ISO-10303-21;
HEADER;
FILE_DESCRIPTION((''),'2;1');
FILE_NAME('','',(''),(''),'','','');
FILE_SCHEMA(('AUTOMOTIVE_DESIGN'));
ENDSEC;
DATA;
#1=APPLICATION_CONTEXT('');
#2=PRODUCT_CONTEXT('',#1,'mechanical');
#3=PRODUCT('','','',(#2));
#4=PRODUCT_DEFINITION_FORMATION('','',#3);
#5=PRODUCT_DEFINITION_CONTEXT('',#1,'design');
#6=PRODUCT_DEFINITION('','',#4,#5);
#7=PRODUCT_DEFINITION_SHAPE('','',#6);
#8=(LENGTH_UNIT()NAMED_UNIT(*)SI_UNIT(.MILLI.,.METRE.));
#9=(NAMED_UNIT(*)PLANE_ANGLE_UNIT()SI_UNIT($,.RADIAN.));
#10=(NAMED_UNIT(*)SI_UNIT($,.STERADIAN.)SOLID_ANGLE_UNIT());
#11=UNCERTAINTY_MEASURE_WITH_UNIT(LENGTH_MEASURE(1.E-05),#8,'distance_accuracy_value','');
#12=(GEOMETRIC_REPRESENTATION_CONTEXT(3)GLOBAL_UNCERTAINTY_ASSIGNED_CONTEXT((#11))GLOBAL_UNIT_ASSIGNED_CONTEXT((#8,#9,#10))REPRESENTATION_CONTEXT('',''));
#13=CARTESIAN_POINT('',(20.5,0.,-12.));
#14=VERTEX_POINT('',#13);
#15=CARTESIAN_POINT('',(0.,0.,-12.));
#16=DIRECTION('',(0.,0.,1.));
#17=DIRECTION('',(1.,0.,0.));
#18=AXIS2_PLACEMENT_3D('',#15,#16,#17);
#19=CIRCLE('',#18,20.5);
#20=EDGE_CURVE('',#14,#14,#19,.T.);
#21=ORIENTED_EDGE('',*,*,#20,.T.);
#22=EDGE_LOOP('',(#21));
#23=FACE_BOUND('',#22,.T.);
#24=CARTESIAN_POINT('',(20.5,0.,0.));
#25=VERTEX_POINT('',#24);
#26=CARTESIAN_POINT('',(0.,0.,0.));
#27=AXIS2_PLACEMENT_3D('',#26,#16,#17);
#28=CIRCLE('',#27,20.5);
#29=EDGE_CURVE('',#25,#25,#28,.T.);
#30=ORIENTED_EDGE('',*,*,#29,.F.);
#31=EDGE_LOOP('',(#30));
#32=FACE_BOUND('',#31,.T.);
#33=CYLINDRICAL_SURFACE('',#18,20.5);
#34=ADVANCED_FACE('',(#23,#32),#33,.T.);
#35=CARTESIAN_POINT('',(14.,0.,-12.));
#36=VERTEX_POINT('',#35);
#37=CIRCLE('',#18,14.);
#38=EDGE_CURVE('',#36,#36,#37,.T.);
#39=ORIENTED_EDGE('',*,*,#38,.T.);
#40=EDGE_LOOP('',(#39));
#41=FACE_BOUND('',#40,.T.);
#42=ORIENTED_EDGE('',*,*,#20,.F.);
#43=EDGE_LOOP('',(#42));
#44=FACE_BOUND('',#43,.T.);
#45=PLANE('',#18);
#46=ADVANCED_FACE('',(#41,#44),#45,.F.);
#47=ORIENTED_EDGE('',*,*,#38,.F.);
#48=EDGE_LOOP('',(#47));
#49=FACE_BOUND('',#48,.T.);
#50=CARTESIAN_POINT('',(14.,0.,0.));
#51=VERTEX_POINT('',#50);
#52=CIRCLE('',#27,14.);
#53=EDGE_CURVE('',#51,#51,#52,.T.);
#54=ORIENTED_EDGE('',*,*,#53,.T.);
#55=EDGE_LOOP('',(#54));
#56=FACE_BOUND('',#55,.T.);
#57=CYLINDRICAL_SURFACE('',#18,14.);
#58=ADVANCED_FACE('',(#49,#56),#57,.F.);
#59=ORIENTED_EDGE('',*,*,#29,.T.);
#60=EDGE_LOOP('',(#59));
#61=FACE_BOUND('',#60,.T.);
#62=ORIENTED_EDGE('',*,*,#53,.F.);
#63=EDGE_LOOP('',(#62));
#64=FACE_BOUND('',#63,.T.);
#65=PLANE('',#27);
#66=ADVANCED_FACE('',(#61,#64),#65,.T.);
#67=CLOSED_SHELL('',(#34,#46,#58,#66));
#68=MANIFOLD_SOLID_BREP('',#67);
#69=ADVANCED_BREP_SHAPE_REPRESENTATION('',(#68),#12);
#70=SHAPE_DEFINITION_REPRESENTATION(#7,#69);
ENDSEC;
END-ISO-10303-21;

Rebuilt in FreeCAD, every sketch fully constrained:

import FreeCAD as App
import Part
import Sketcher
Q = App.Units.Quantity

doc = App.newDocument("Part")
body = doc.addObject("PartDesign::Body", "Body")

sketch1 = body.newObject("Sketcher::SketchObject", "Sketch")
sketch1.AttachmentSupport = (doc.getObject("XY_Plane"), [""])
sketch1.MapMode = "FlatFace"
sketch1.addGeometry([
    Part.Circle(App.Vector(0, 0, 0), App.Vector(0, 0, 1), 20.5),
    Part.Circle(App.Vector(0, 0, 0), App.Vector(0, 0, 1), 14),
], False)
sketch1.addConstraint([
    Sketcher.Constraint("Coincident", 0, 3, -1, 1),
    Sketcher.Constraint("Coincident", 1, 3, -1, 1),
    Sketcher.Constraint("Diameter", 0, Q("41 mm")),
    Sketcher.Constraint("Diameter", 1, Q("28 mm")),
])
pad1 = body.newObject("PartDesign::Pad", "Pad")
pad1.Profile = sketch1
pad1.Length = 12
pad1.Reversed = True

doc.recompute()
